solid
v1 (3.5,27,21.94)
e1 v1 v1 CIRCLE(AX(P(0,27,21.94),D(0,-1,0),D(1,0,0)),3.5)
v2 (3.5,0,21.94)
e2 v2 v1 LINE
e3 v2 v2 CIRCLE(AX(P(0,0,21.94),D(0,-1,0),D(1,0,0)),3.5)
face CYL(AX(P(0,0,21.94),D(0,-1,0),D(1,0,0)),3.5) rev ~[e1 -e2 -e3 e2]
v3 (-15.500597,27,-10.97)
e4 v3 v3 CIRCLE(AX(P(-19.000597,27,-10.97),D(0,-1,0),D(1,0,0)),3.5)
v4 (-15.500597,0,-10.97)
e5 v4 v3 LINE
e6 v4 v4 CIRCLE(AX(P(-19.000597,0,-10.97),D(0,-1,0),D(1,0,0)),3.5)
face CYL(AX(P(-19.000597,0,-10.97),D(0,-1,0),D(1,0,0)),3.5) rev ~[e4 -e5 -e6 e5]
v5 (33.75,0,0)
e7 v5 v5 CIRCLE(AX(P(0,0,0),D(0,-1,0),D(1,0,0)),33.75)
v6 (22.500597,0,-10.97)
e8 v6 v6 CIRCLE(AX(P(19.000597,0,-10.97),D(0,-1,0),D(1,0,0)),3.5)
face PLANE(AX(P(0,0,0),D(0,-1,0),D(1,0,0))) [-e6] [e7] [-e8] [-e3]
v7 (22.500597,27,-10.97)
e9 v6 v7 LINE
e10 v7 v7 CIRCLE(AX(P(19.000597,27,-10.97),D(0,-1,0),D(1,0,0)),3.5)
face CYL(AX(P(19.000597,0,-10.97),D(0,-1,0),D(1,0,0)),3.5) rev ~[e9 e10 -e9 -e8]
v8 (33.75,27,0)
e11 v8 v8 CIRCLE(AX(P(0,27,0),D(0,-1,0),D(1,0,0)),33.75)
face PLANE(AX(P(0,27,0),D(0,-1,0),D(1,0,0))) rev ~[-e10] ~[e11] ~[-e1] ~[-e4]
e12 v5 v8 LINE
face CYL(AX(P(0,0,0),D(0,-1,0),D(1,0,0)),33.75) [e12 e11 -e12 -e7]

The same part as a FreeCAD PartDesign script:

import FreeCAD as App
import Part
import Sketcher
Q = App.Units.Quantity

doc = App.newDocument("Part")
body = doc.addObject("PartDesign::Body", "Body")

# Sketch on XZ plane
sketch1 = body.newObject("Sketcher::SketchObject", "Sketch")
sketch1.AttachmentSupport = (doc.getObject("XZ_Plane"), [""])
sketch1.MapMode = "FlatFace"
sketch1.addGeometry(Part.Circle(App.Vector(0, 0, 0), App.Vector(0, 0, 1), 34), False)
sketch1.addConstraint([
    Sketcher.Constraint("Coincident", 0, 3, -1, 1),
    Sketcher.Constraint("Diameter", 0, Q("67.5 mm")),
])
pad1 = body.newObject("PartDesign::Pad", "Pad")
pad1.Profile = sketch1
pad1.Length = 27
pad1.Reversed = True

# Sketch on XZ plane
sketch2 = body.newObject("Sketcher::SketchObject", "Sketch001")
sketch2.AttachmentSupport = (doc.getObject("XZ_Plane"), [""])
sketch2.MapMode = "FlatFace"
sketch2.addGeometry([
    Part.Circle(App.Vector(0, 21.9, 0), App.Vector(0, 0, 1), 3.5),
    Part.Circle(App.Vector(-19, -11, 0), App.Vector(0, 0, 1), 3.5),
    Part.Circle(App.Vector(19, -11, 0), App.Vector(0, 0, 1), 3.5),
], False)
sketch2.addConstraint([
    Sketcher.Constraint("Equal", 0, 1),
    Sketcher.Constraint("Equal", 1, 2),
    Sketcher.Constraint("Symmetric", 1, 3, 2, 3, -2),
    Sketcher.Constraint("PointOnObject", 0, 3, -2),
    Sketcher.Constraint("Diameter", 0, Q("7 mm")),
    Sketcher.Constraint("DistanceY", -1, 1, 0, 3, Q("21.94 mm")),
    Sketcher.Constraint("DistanceY", 1, 3, -1, 1, Q("10.97 mm")),
    Sketcher.Constraint("DistanceX", 1, 3, -1, 1, Q("19.000597 mm")),
])
pocket1 = body.newObject("PartDesign::Pocket", "Pocket")
pocket1.Profile = sketch2
pocket1.Length = 27

doc.recompute()
